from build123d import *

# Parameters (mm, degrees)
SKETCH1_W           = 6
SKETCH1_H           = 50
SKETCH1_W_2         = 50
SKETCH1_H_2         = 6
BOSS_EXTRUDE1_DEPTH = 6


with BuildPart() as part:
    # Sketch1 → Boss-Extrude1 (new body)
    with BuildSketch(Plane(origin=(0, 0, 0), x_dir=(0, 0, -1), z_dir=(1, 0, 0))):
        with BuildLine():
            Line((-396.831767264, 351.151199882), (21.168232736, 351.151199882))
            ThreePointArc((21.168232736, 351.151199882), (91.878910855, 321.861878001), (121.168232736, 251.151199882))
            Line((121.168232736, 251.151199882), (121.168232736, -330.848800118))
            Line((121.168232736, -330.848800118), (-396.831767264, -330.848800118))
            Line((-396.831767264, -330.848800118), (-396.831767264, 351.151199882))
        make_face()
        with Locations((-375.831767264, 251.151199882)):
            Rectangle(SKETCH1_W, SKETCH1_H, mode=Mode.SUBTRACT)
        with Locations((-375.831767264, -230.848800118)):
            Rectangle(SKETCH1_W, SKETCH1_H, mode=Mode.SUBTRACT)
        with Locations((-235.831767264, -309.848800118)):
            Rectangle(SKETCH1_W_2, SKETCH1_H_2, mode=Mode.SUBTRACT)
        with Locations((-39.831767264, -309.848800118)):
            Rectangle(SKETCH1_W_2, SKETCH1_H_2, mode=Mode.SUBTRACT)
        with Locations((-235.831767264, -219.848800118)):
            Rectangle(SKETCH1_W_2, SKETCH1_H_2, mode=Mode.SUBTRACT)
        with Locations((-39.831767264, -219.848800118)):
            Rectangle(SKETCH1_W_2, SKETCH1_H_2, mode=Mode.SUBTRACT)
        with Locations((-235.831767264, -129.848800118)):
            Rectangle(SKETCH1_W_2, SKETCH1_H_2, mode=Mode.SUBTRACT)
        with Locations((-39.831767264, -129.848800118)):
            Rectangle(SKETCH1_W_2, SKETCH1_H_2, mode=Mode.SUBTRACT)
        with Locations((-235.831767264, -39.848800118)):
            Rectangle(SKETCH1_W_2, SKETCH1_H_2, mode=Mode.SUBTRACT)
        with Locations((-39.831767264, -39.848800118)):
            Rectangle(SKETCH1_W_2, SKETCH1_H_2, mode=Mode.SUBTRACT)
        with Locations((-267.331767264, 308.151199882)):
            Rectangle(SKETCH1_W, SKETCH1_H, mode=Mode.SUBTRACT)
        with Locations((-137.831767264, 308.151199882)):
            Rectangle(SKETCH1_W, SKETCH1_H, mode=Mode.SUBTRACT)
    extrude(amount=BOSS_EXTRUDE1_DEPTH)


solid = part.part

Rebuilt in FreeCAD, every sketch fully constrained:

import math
import FreeCAD as App
import Part
import Sketcher

doc = App.newDocument("Part")
params = doc.addObject("Spreadsheet::Sheet", "Params")
for row, (alias, value) in enumerate([
    ("sketch1_radius", "100 mm"),
    ("sketch1_width", "682 mm"),
    ("sketch1_width2", "6 mm"),
    ("sketch1_width3", "50 mm"),
    ("sketch1_height", "418 mm"),
    ("pad1_length", "6 mm"),
], start=1):
    params.set(f"A{row}", alias)
    params.set(f"B{row}", "=" + value)
    params.setAlias(f"B{row}", alias)

body = doc.addObject("PartDesign::Body", "Body")

sketch1 = body.newObject("Sketcher::SketchObject", "Sketch")
sketch1.AttachmentSupport = (doc.getObject("YZ_Plane"), [""])
sketch1.MapMode = "FlatFace"
sketch1.addGeometry([
    Part.LineSegment(App.Vector(351, -21, 0), App.Vector(351, 397, 0)),
    Part.LineSegment(App.Vector(351, 397, 0), App.Vector(-331, 397, 0)),
    Part.LineSegment(App.Vector(-331, 397, 0), App.Vector(-331, -121, 0)),
    Part.LineSegment(App.Vector(-331, -121, 0), App.Vector(251, -121, 0)),
    Part.ArcOfCircle(Part.Circle(App.Vector(251, -21, 0), App.Vector(0, 0, 1), 100), math.radians(-90), math.radians(0)),
    Part.LineSegment(App.Vector(-313, 65, 0), App.Vector(-307, 65, 0)),
    Part.LineSegment(App.Vector(-307, 65, 0), App.Vector(-307, 15, 0)),
    Part.LineSegment(App.Vector(-307, 15, 0), App.Vector(-313, 15, 0)),
    Part.LineSegment(App.Vector(-313, 15, 0), App.Vector(-313, 65, 0)),
    Part.LineSegment(App.Vector(-223, 65, 0), App.Vector(-217, 65, 0)),
    Part.LineSegment(App.Vector(-217, 65, 0), App.Vector(-217, 15, 0)),
    Part.LineSegment(App.Vector(-217, 15, 0), App.Vector(-223, 15, 0)),
    Part.LineSegment(App.Vector(-223, 15, 0), App.Vector(-223, 65, 0)),
    Part.LineSegment(App.Vector(-133, 65, 0), App.Vector(-127, 65, 0)),
    Part.LineSegment(App.Vector(-127, 65, 0), App.Vector(-127, 15, 0)),
    Part.LineSegment(App.Vector(-127, 15, 0), App.Vector(-133, 15, 0)),
    Part.LineSegment(App.Vector(-133, 15, 0), App.Vector(-133, 65, 0)),
    Part.LineSegment(App.Vector(-43, 65, 0), App.Vector(-37, 65, 0)),
    Part.LineSegment(App.Vector(-37, 65, 0), App.Vector(-37, 15, 0)),
    Part.LineSegment(App.Vector(-37, 15, 0), App.Vector(-43, 15, 0)),
    Part.LineSegment(App.Vector(-43, 15, 0), App.Vector(-43, 65, 0)),
    Part.LineSegment(App.Vector(-313, 261, 0), App.Vector(-307, 261, 0)),
    Part.LineSegment(App.Vector(-307, 261, 0), App.Vector(-307, 211, 0)),
    Part.LineSegment(App.Vector(-307, 211, 0), App.Vector(-313, 211, 0)),
    Part.LineSegment(App.Vector(-313, 211, 0), App.Vector(-313, 261, 0)),
    Part.LineSegment(App.Vector(-223, 261, 0), App.Vector(-217, 261, 0)),
    Part.LineSegment(App.Vector(-217, 261, 0), App.Vector(-217, 211, 0)),
    Part.LineSegment(App.Vector(-217, 211, 0), App.Vector(-223, 211, 0)),
    Part.LineSegment(App.Vector(-223, 211, 0), App.Vector(-223, 261, 0)),
    Part.LineSegment(App.Vector(-256, 379, 0), App.Vector(-206, 379, 0)),
    Part.LineSegment(App.Vector(-206, 379, 0), App.Vector(-206, 373, 0)),
    Part.LineSegment(App.Vector(-206, 373, 0), App.Vector(-256, 373, 0)),
    Part.LineSegment(App.Vector(-256, 373, 0), App.Vector(-256, 379, 0)),
    Part.LineSegment(App.Vector(-133, 261, 0), App.Vector(-127, 261, 0)),
    Part.LineSegment(App.Vector(-127, 261, 0), App.Vector(-127, 211, 0)),
    Part.LineSegment(App.Vector(-127, 211, 0), App.Vector(-133, 211, 0)),
    Part.LineSegment(App.Vector(-133, 211, 0), App.Vector(-133, 261, 0)),
    Part.LineSegment(App.Vector(-43, 261, 0), App.Vector(-37, 261, 0)),
    Part.LineSegment(App.Vector(-37, 261, 0), App.Vector(-37, 211, 0)),
    Part.LineSegment(App.Vector(-37, 211, 0), App.Vector(-43, 211, 0)),
    Part.LineSegment(App.Vector(-43, 211, 0), App.Vector(-43, 261, 0)),
    Part.LineSegment(App.Vector(283, 141, 0), App.Vector(333, 141, 0)),
    Part.LineSegment(App.Vector(333, 141, 0), App.Vector(333, 135, 0)),
    Part.LineSegment(App.Vector(333, 135, 0), App.Vector(283, 135, 0)),
    Part.LineSegment(App.Vector(283, 135, 0), App.Vector(283, 141, 0)),
    Part.LineSegment(App.Vector(283, 270, 0), App.Vector(333, 270, 0)),
    Part.LineSegment(App.Vector(333, 270, 0), App.Vector(333, 264, 0)),
    Part.LineSegment(App.Vector(333, 264, 0), App.Vector(283, 264, 0)),
    Part.LineSegment(App.Vector(283, 264, 0), App.Vector(283, 270, 0)),
    Part.LineSegment(App.Vector(226, 379, 0), App.Vector(276, 379, 0)),
    Part.LineSegment(App.Vector(276, 379, 0), App.Vector(276, 373, 0)),
    Part.LineSegment(App.Vector(276, 373, 0), App.Vector(226, 373, 0)),
    Part.LineSegment(App.Vector(226, 373, 0), App.Vector(226, 379, 0)),
], False)
sketch1.addConstraint([
    Sketcher.Constraint("Coincident", 0, 2, 1, 1),
    Sketcher.Constraint("Coincident", 1, 2, 2, 1),
    Sketcher.Constraint("Coincident", 2, 2, 3, 1),
    Sketcher.Constraint("Tangent", 3, 2, 4, 1),
    Sketcher.Constraint("Tangent", 4, 2, 0, 1),
    Sketcher.Constraint("Coincident", 5, 2, 6, 1),
    Sketcher.Constraint("Coincident", 6, 2, 7, 1),
    Sketcher.Constraint("Coincident", 7, 2, 8, 1),
    Sketcher.Constraint("Coincident", 8, 2, 5, 1),
    Sketcher.Constraint("Coincident", 9, 2, 10, 1),
    Sketcher.Constraint("Coincident", 10, 2, 11, 1),
    Sketcher.Constraint("Coincident", 11, 2, 12, 1),
    Sketcher.Constraint("Coincident", 12, 2, 9, 1),
    Sketcher.Constraint("Coincident", 13, 2, 14, 1),
    Sketcher.Constraint("Coincident", 14, 2, 15, 1),
    Sketcher.Constraint("Coincident", 15, 2, 16, 1),
    Sketcher.Constraint("Coincident", 16, 2, 13, 1),
    Sketcher.Constraint("Coincident", 17, 2, 18, 1),
    Sketcher.Constraint("Coincident", 18, 2, 19, 1),
    Sketcher.Constraint("Coincident", 19, 2, 20, 1),
    Sketcher.Constraint("Coincident", 20, 2, 17, 1),
    Sketcher.Constraint("Coincident", 21, 2, 22, 1),
    Sketcher.Constraint("Coincident", 22, 2, 23, 1),
    Sketcher.Constraint("Coincident", 23, 2, 24, 1),
    Sketcher.Constraint("Coincident", 24, 2, 21, 1),
    Sketcher.Constraint("Coincident", 25, 2, 26, 1),
    Sketcher.Constraint("Coincident", 26, 2, 27, 1),
    Sketcher.Constraint("Coincident", 27, 2, 28, 1),
    Sketcher.Constraint("Coincident", 28, 2, 25, 1),
    Sketcher.Constraint("Coincident", 29, 2, 30, 1),
    Sketcher.Constraint("Coincident", 30, 2, 31, 1),
    Sketcher.Constraint("Coincident", 31, 2, 32, 1),
    Sketcher.Constraint("Coincident", 32, 2, 29, 1),
    Sketcher.Constraint("Coincident", 33, 2, 34, 1),
    Sketcher.Constraint("Coincident", 34, 2, 35, 1),
    Sketcher.Constraint("Coincident", 35, 2, 36, 1),
    Sketcher.Constraint("Coincident", 36, 2, 33, 1),
    Sketcher.Constraint("Coincident", 37, 2, 38, 1),
    Sketcher.Constraint("Coincident", 38, 2, 39, 1),
    Sketcher.Constraint("Coincident", 39, 2, 40, 1),
    Sketcher.Constraint("Coincident", 40, 2, 37, 1),
    Sketcher.Constraint("Coincident", 41, 2, 42, 1),
    Sketcher.Constraint("Coincident", 42, 2, 43, 1),
    Sketcher.Constraint("Coincident", 43, 2, 44, 1),
    Sketcher.Constraint("Coincident", 44, 2, 41, 1),
    Sketcher.Constraint("Coincident", 45, 2, 46, 1),
    Sketcher.Constraint("Coincident", 46, 2, 47, 1),
    Sketcher.Constraint("Coincident", 47, 2, 48, 1),
    Sketcher.Constraint("Coincident", 48, 2, 45, 1),
    Sketcher.Constraint("Coincident", 49, 2, 50, 1),
    Sketcher.Constraint("Coincident", 50, 2, 51, 1),
    Sketcher.Constraint("Coincident", 51, 2, 52, 1),
    Sketcher.Constraint("Coincident", 52, 2, 49, 1),
    Sketcher.Constraint("Vertical", 0),
    Sketcher.Constraint("Horizontal", 1),
    Sketcher.Constraint("Vertical", 2),
    Sketcher.Constraint("Horizontal", 3),
    Sketcher.Constraint("Horizontal", 5),
    Sketcher.Constraint("Vertical", 6),
    Sketcher.Constraint("Horizontal", 7),
    Sketcher.Constraint("Vertical", 8),
    Sketcher.Constraint("Horizontal", 9),
    Sketcher.Constraint("Vertical", 10),
    Sketcher.Constraint("Horizontal", 11),
    Sketcher.Constraint("Vertical", 12),
    Sketcher.Constraint("Horizontal", 13),
    Sketcher.Constraint("Vertical", 14),
    Sketcher.Constraint("Horizontal", 15),
    Sketcher.Constraint("Vertical", 16),
    Sketcher.Constraint("Horizontal", 17),
    Sketcher.Constraint("Vertical", 18),
    Sketcher.Constraint("Horizontal", 19),
    Sketcher.Constraint("Vertical", 20),
    Sketcher.Constraint("Horizontal", 21),
    Sketcher.Constraint("Vertical", 22),
    Sketcher.Constraint("Horizontal", 23),
    Sketcher.Constraint("Vertical", 24),
    Sketcher.Constraint("Horizontal", 25),
    Sketcher.Constraint("Vertical", 26),
    Sketcher.Constraint("Horizontal", 27),
    Sketcher.Constraint("Vertical", 28),
    Sketcher.Constraint("Horizontal", 29),
    Sketcher.Constraint("Vertical", 30),
    Sketcher.Constraint("Horizontal", 31),
    Sketcher.Constraint("Vertical", 32),
    Sketcher.Constraint("Horizontal", 33),
    Sketcher.Constraint("Vertical", 34),
    Sketcher.Constraint("Horizontal", 35),
    Sketcher.Constraint("Vertical", 36),
    Sketcher.Constraint("Horizontal", 37),
    Sketcher.Constraint("Vertical", 38),
    Sketcher.Constraint("Horizontal", 39),
    Sketcher.Constraint("Vertical", 40),
    Sketcher.Constraint("Horizontal", 41),
    Sketcher.Constraint("Vertical", 42),
    Sketcher.Constraint("Horizontal", 43),
    Sketcher.Constraint("Vertical", 44),
    Sketcher.Constraint("Horizontal", 45),
    Sketcher.Constraint("Vertical", 46),
    Sketcher.Constraint("Horizontal", 47),
    Sketcher.Constraint("Vertical", 48),
    Sketcher.Constraint("Horizontal", 49),
    Sketcher.Constraint("Vertical", 50),
    Sketcher.Constraint("Horizontal", 51),
    Sketcher.Constraint("Vertical", 52),
    Sketcher.Constraint("Horizontal", 8, 2, 9, 2),
    Sketcher.Constraint("Horizontal", 7, 2, 10, 2),
    Sketcher.Constraint("Horizontal", 12, 2, 13, 2),
    Sketcher.Constraint("Horizontal", 11, 2, 14, 2),
    Sketcher.Constraint("Horizontal", 16, 2, 17, 2),
    Sketcher.Constraint("Horizontal", 15, 2, 18, 2),
    Sketcher.Constraint("Horizontal", 24, 2, 25, 2),
    Sketcher.Constraint("Horizontal", 23, 2, 26, 2),
    Sketcher.Constraint("Horizontal", 28, 2, 33, 2),
    Sketcher.Constraint("Horizontal", 27, 2, 34, 2),
    Sketcher.Constraint("Horizontal", 36, 2, 37, 2),
    Sketcher.Constraint("Horizontal", 35, 2, 38, 2),
    Sketcher.Constraint("Horizontal", 32, 2, 49, 2),
    Sketcher.Constraint("Horizontal", 31, 2, 50, 2),
    Sketcher.Constraint("Vertical", 6, 2, 21, 2),
    Sketcher.Constraint("Vertical", 8, 2, 23, 2),
    Sketcher.Constraint("Vertical", 10, 2, 25, 2),
    Sketcher.Constraint("Vertical", 12, 2, 27, 2),
    Sketcher.Constraint("Vertical", 14, 2, 33, 2),
    Sketcher.Constraint("Vertical", 16, 2, 35, 2),
    Sketcher.Constraint("Vertical", 18, 2, 37, 2),
    Sketcher.Constraint("Vertical", 20, 2, 39, 2),
    Sketcher.Constraint("Vertical", 42, 2, 45, 2),
    Sketcher.Constraint("Vertical", 44, 2, 47, 2),
    Sketcher.Constraint("Equal", 7, 9),
    Sketcher.Constraint("Equal", 11, 13),
    Sketcher.Constraint("Equal", 15, 17),
    Sketcher.Constraint("Equal", 31, 41),
    Sketcher.Constraint("Equal", 47, 49),
    Sketcher.Constraint("Equal", 51, 6),
    Sketcher.Constraint("Equal", 20, 22),
    Sketcher.Constraint("Equal", 39, 30),
    Sketcher.Constraint("Equal", 32, 42),
    Sketcher.Constraint("Equal", 44, 46),
    Sketcher.Constraint("Radius", 4, 100.0),
    Sketcher.Constraint("DistanceX", 1, 2, 1, 1, 682.0),
    Sketcher.Constraint("DistanceX", 5, 1, 5, 2, 6.0),
    Sketcher.Constraint("DistanceX", 29, 1, 29, 2, 50.0),
    Sketcher.Constraint("DistanceY", 0, 1, 0, 2, 418.0),
    Sketcher.Constraint("DistanceX", 2, 2, 5, 2, 24.0),
    Sketcher.Constraint("DistanceY", 2, 2, 5, 2, 186.0),
    Sketcher.Constraint("DistanceX", 5, 2, 9, 2, 90.0),
    Sketcher.Constraint("DistanceX", 9, 2, 13, 2, 90.0),
    Sketcher.Constraint("DistanceX", 13, 2, 17, 2, 90.0),
    Sketcher.Constraint("DistanceY", 21, 2, 1, 2, 136.0),
    Sketcher.Constraint("DistanceX", 25, 2, 29, 2, 11.0),
    Sketcher.Constraint("DistanceY", 25, 2, 29, 2, 118.0),
    Sketcher.Constraint("DistanceX", 41, 2, 4, 2, 18.0),
    Sketcher.Constraint("DistanceY", 4, 2, 41, 2, 162.0),
    Sketcher.Constraint("DistanceX", 49, 2, 0, 2, 75.0),
    Sketcher.Constraint("DistanceY", 45, 2, 0, 2, 126.5),
    Sketcher.Constraint("DistanceX", -1, 1, 4, 3, 251.1512),
    Sketcher.Constraint("DistanceY", 4, 3, -1, 1, 21.168233),
])
sketch1.setExpression("Constraints[139]", "Params.sketch1_radius")
sketch1.setExpression("Constraints[140]", "Params.sketch1_width")
sketch1.setExpression("Constraints[141]", "Params.sketch1_width2")
sketch1.setExpression("Constraints[142]", "Params.sketch1_width3")
sketch1.setExpression("Constraints[143]", "Params.sketch1_height")
pad1 = body.newObject("PartDesign::Pad", "Pad")
pad1.Profile = sketch1
pad1.setExpression("Length", "Params.pad1_length")

doc.recompute()
